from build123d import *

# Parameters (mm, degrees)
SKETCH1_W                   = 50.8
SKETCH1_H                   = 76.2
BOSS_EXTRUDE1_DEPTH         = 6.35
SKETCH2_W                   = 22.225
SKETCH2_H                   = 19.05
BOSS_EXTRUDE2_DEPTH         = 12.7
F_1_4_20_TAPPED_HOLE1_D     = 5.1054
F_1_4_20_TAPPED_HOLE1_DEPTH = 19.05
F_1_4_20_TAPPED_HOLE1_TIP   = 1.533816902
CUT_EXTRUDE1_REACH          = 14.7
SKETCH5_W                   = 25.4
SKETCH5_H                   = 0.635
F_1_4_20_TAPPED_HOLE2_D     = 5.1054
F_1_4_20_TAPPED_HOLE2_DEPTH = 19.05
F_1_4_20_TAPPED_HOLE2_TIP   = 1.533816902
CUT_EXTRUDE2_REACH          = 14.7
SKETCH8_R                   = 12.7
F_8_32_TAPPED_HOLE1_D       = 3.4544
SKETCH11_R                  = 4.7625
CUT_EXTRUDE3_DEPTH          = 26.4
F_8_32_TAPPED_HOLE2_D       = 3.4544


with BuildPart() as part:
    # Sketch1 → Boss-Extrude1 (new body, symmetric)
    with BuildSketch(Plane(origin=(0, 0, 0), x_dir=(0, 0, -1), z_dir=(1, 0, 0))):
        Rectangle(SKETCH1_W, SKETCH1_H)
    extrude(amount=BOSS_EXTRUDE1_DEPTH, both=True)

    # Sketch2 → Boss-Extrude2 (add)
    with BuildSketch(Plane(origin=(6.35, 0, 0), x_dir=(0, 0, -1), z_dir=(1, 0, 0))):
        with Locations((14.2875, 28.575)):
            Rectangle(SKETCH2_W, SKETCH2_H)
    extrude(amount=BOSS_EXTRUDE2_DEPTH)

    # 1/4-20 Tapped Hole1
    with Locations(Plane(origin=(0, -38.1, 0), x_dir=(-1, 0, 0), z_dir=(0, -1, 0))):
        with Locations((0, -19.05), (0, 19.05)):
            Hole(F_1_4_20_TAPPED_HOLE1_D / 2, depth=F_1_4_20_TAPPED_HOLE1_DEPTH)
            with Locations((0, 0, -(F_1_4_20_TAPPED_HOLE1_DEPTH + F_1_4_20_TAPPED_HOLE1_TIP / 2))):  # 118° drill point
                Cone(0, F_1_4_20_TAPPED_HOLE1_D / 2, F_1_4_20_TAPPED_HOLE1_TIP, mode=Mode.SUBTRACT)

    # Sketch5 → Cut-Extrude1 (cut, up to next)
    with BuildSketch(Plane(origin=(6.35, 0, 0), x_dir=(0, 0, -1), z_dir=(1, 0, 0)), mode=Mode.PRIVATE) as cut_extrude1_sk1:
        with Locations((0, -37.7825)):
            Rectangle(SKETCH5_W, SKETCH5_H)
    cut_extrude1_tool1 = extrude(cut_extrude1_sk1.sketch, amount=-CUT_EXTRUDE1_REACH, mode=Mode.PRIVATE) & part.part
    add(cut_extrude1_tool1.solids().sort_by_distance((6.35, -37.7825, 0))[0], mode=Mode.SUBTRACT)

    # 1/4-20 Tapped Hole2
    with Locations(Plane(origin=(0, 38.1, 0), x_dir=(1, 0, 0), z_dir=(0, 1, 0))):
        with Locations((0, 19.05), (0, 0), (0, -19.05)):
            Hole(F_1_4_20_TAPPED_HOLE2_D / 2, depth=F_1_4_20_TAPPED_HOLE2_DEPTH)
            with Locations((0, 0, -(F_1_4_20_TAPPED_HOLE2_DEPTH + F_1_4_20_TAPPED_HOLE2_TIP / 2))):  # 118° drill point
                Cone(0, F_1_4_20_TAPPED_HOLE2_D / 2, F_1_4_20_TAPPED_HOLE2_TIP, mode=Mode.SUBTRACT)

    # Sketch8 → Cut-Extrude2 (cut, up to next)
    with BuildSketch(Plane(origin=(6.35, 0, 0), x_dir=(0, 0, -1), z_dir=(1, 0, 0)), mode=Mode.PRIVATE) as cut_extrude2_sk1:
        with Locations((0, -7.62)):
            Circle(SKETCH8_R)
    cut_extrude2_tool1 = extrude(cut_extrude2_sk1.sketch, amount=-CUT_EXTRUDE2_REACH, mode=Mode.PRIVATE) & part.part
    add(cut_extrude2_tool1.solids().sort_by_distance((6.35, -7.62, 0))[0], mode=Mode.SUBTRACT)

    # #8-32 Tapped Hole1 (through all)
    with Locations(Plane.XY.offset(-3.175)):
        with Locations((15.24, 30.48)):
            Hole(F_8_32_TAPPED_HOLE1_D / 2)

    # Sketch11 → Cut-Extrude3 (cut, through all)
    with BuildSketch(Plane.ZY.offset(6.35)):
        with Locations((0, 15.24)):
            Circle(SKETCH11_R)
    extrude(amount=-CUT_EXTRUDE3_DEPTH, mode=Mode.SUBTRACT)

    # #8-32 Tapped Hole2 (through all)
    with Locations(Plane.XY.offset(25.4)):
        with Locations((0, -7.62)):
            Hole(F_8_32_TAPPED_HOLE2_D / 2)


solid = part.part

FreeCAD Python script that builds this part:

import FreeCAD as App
import Part
import Sketcher
Q = App.Units.Quantity

doc = App.newDocument("Part")
params = doc.addObject("Spreadsheet::Sheet", "Params")
for row, (alias, value) in enumerate([
    ("sketch1_width", "3 in"),
    ("sketch1_height", "2 in"),
    ("pad1_length", "0.5 in"),
    ("sketch2_width", "0.75 in"),
    ("sketch2_height", "0.875 in"),
    ("pad2_length", "0.5 in"),
    ("sketch3_diameter", "0.201 in"),
    ("hole_diameter", "0.201 in"),
    ("hole_depth", "0.75 in"),
    ("sketch4_height", "1 in"),
    ("sketch4_width", "0.025 in"),
    ("sketch5_diameter", "0.201 in"),
    ("hole2_diameter", "0.201 in"),
    ("hole2_depth", "0.75 in"),
    ("sketch6_diameter", "1 in"),
    ("sketch7_diameter", "0.136 in"),
    ("hole3_diameter", "0.136 in"),
    ("sketch8_diameter", "0.375 in"),
    ("sketch9_diameter", "0.136 in"),
    ("hole4_diameter", "0.136 in"),
], start=1):
    params.set(f"A{row}", alias)
    params.set(f"B{row}", "=" + value)
    params.setAlias(f"B{row}", alias)

body = doc.addObject("PartDesign::Body", "Body")

# Sketch on YZ plane
sketch1 = body.newObject("Sketcher::SketchObject", "Sketch")
sketch1.AttachmentSupport = (doc.getObject("YZ_Plane"), [""])
sketch1.MapMode = "FlatFace"
sketch1.addGeometry([
    Part.LineSegment(App.Vector(38, 25, 0), App.Vector(-38, 25, 0)),
    Part.LineSegment(App.Vector(-38, 25, 0), App.Vector(-38, -25, 0)),
    Part.LineSegment(App.Vector(-38, -25, 0), App.Vector(38, -25, 0)),
    Part.LineSegment(App.Vector(38, -25, 0), App.Vector(38, 25, 0)),
], False)
sketch1.addConstraint([
    Sketcher.Constraint("Coincident", 0, 2, 1, 1),
    Sketcher.Constraint("Coincident", 1, 2, 2, 1),
    Sketcher.Constraint("Coincident", 2, 2, 3, 1),
    Sketcher.Constraint("Coincident", 3, 2, 0, 1),
    Sketcher.Constraint("Horizontal", 0),
    Sketcher.Constraint("Vertical", 1),
    Sketcher.Constraint("Horizontal", 2),
    Sketcher.Constraint("Vertical", 3),
    Sketcher.Constraint("Symmetric", 0, 2, 2, 2, -1, 1),
    Sketcher.Constraint("DistanceX", 0, 2, 0, 1, Q("3 in")),
    Sketcher.Constraint("DistanceY", 1, 2, 1, 1, Q("2 in")),
])
sketch1.setExpression("Constraints[9]", "Params.sketch1_width")
sketch1.setExpression("Constraints[10]", "Params.sketch1_height")
pad1 = body.newObject("PartDesign::Pad", "Pad")
pad1.Profile = sketch1
pad1.setExpression("Length", "Params.pad1_length")
pad1.Midplane = True

# Sketch on YZ plane
sketch2 = body.newObject("Sketcher::SketchObject", "Sketch001")
sketch2.AttachmentSupport = (doc.getObject("YZ_Plane"), [""])
sketch2.MapMode = "FlatFace"
sketch2.AttachmentOffset = App.Placement(App.Vector(0, 0, 0.25 * 25.4), App.Rotation())
sketch2.addGeometry([
    Part.LineSegment(App.Vector(38, -3, 0), App.Vector(19, -3, 0)),
    Part.LineSegment(App.Vector(19, -3, 0), App.Vector(19, -25, 0)),
    Part.LineSegment(App.Vector(19, -25, 0), App.Vector(38, -25, 0)),
    Part.LineSegment(App.Vector(38, -25, 0), App.Vector(38, -3, 0)),
], False)
sketch2.addConstraint([
    Sketcher.Constraint("Coincident", 0, 2, 1, 1),
    Sketcher.Constraint("Coincident", 1, 2, 2, 1),
    Sketcher.Constraint("Coincident", 2, 2, 3, 1),
    Sketcher.Constraint("Coincident", 3, 2, 0, 1),
    Sketcher.Constraint("Horizontal", 0),
    Sketcher.Constraint("Vertical", 1),
    Sketcher.Constraint("Horizontal", 2),
    Sketcher.Constraint("Vertical", 3),
    Sketcher.Constraint("DistanceY", 1, 2, -1, 1, Q("1 in")),
    Sketcher.Constraint("DistanceX", 0, 2, 0, 1, Q("0.75 in")),
    Sketcher.Constraint("DistanceX", -1, 1, 2, 2, Q("1.5 in")),
    Sketcher.Constraint("DistanceY", 1, 2, 1, 1, Q("0.875 in")),
])
sketch2.setExpression("Constraints[9]", "Params.sketch2_width")
sketch2.setExpression("Constraints[11]", "Params.sketch2_height")
pad2 = body.newObject("PartDesign::Pad", "Pad001")
pad2.Profile = sketch2
pad2.setExpression("Length", "Params.pad2_length")

# Sketch on XZ plane
sketch3 = body.newObject("Sketcher::SketchObject", "Sketch002")
sketch3.AttachmentSupport = (doc.getObject("XZ_Plane"), [""])
sketch3.MapMode = "FlatFace"
sketch3.AttachmentOffset = App.Placement(App.Vector(0, 0, 1.5 * 25.4), App.Rotation())
sketch3.addGeometry([
    Part.Circle(App.Vector(0, 19.1, 0), App.Vector(0, 0, 1), 2.6),
    Part.Circle(App.Vector(0, -19.1, 0), App.Vector(0, 0, 1), 2.6),
], False)
sketch3.addConstraint([
    Sketcher.Constraint("Equal", 0, 1),
    Sketcher.Constraint("Symmetric", 0, 3, 1, 3, -1, 1),
    Sketcher.Constraint("PointOnObject", 0, 3, -2),
    Sketcher.Constraint("Diameter", 0, Q("0.201 in")),
    Sketcher.Constraint("DistanceY", 1, 3, 0, 3, Q("1.5 in")),
])
sketch3.setExpression("Constraints[3]", "Params.sketch3_diameter")
doc.recompute()
hole = body.newObject("PartDesign::Hole", "Hole")
hole.Profile = sketch3
hole.ThreadType = "None"
hole.setExpression("Diameter", "Params.hole_diameter")
hole.DepthType = "Dimension"
hole.setExpression("Depth", "Params.hole_depth")
hole.DrillPoint = "Angled"
hole.DrillPointAngle = 118

# Sketch on YZ plane
sketch4 = body.newObject("Sketcher::SketchObject", "Sketch003")
sketch4.AttachmentSupport = (doc.getObject("YZ_Plane"), [""])
sketch4.MapMode = "FlatFace"
sketch4.AttachmentOffset = App.Placement(App.Vector(0, 0, 0.25 * 25.4), App.Rotation())
sketch4.addGeometry([
    Part.LineSegment(App.Vector(-37.5, 12.7, 0), App.Vector(-38.1, 12.7, 0)),
    Part.LineSegment(App.Vector(-38.1, 12.7, 0), App.Vector(-38.1, -12.7, 0)),
    Part.LineSegment(App.Vector(-38.1, -12.7, 0), App.Vector(-37.5, -12.7, 0)),
    Part.LineSegment(App.Vector(-37.5, -12.7, 0), App.Vector(-37.5, 12.7, 0)),
], False)
sketch4.addConstraint([
    Sketcher.Constraint("Coincident", 0, 2, 1, 1),
    Sketcher.Constraint("Coincident", 1, 2, 2, 1),
    Sketcher.Constraint("Coincident", 2, 2, 3, 1),
    Sketcher.Constraint("Coincident", 3, 2, 0, 1),
    Sketcher.Constraint("Horizontal", 0),
    Sketcher.Constraint("Vertical", 1),
    Sketcher.Constraint("Horizontal", 2),
    Sketcher.Constraint("Vertical", 3),
    Sketcher.Constraint("DistanceY", 1, 2, 1, 1, Q("1 in")),
    Sketcher.Constraint("DistanceX", 0, 2, -1, 1, Q("1.5 in")),
    Sketcher.Constraint("DistanceY", -1, 1, 0, 2, Q("0.5 in")),
    Sketcher.Constraint("DistanceX", 0, 2, 0, 1, Q("0.025 in")),
])
sketch4.setExpression("Constraints[8]", "Params.sketch4_height")
sketch4.setExpression("Constraints[11]", "Params.sketch4_width")
pocket1 = body.newObject("PartDesign::Pocket", "Pocket")
pocket1.Profile = sketch4
pocket1.Type = "UpToFirst"

# Sketch on XZ plane
sketch5 = body.newObject("Sketcher::SketchObject", "Sketch004")
sketch5.AttachmentSupport = (doc.getObject("XZ_Plane"), [""])
sketch5.MapMode = "FlatFace"
sketch5.AttachmentOffset = App.Placement(App.Vector(0, 0, -1.5 * 25.4), App.Rotation())
sketch5.addGeometry([
    Part.Circle(App.Vector(0, -19.1, 0), App.Vector(0, 0, 1), 2.6),
    Part.Circle(App.Vector(0, 0, 0), App.Vector(0, 0, 1), 2.6),
    Part.Circle(App.Vector(0, 19.1, 0), App.Vector(0, 0, 1), 2.6),
], False)
sketch5.addConstraint([
    Sketcher.Constraint("Coincident", 1, 3, -1, 1),
    Sketcher.Constraint("Equal", 0, 1),
    Sketcher.Constraint("Equal", 1, 2),
    Sketcher.Constraint("Symmetric", 0, 3, 2, 3, -1, 1),
    Sketcher.Constraint("PointOnObject", 0, 3, -2),
    Sketcher.Constraint("Diameter", 0, Q("0.201 in")),
    Sketcher.Constraint("DistanceY", 0, 3, 2, 3, Q("1.5 in")),
])
sketch5.setExpression("Constraints[5]", "Params.sketch5_diameter")
doc.recompute()
hole2 = body.newObject("PartDesign::Hole", "Hole001")
hole2.Profile = sketch5
hole2.ThreadType = "None"
hole2.setExpression("Diameter", "Params.hole2_diameter")
hole2.DepthType = "Dimension"
hole2.setExpression("Depth", "Params.hole2_depth")
hole2.DrillPoint = "Angled"
hole2.DrillPointAngle = 118
hole2.Reversed = True

# Sketch on YZ plane
sketch6 = body.newObject("Sketcher::SketchObject", "Sketch005")
sketch6.AttachmentSupport = (doc.getObject("YZ_Plane"), [""])
sketch6.MapMode = "FlatFace"
sketch6.AttachmentOffset = App.Placement(App.Vector(0, 0, 0.25 * 25.4), App.Rotation())
sketch6.addGeometry(Part.Circle(App.Vector(-8, 0, 0), App.Vector(0, 0, 1), 13), False)
sketch6.addConstraint([
    Sketcher.Constraint("PointOnObject", 0, 3, -1),
    Sketcher.Constraint("Diameter", 0, Q("1 in")),
    Sketcher.Constraint("DistanceX", 0, 3, -1, 1, Q("0.3 in")),
])
sketch6.setExpression("Constraints[1]", "Params.sketch6_diameter")
pocket2 = body.newObject("PartDesign::Pocket", "Pocket001")
pocket2.Profile = sketch6
pocket2.Type = "UpToFirst"

# Sketch on XY plane
sketch7 = body.newObject("Sketcher::SketchObject", "Sketch006")
sketch7.AttachmentSupport = (doc.getObject("XY_Plane"), [""])
sketch7.MapMode = "FlatFace"
sketch7.AttachmentOffset = App.Placement(App.Vector(0, 0, -0.125 * 25.4), App.Rotation())
sketch7.addGeometry(Part.Circle(App.Vector(15.2, 30.5, 0), App.Vector(0, 0, 1), 1.7), False)
sketch7.addConstraint([
    Sketcher.Constraint("Diameter", 0, Q("0.136 in")),
    Sketcher.Constraint("DistanceX", -1, 1, 0, 3, Q("0.6 in")),
    Sketcher.Constraint("DistanceY", -1, 1, 0, 3, Q("1.2 in")),
])
sketch7.setExpression("Constraints[0]", "Params.sketch7_diameter")
doc.recompute()
hole3 = body.newObject("PartDesign::Hole", "Hole002")
hole3.Profile = sketch7
hole3.ThreadType = "None"
hole3.setExpression("Diameter", "Params.hole3_diameter")
hole3.DepthType = "ThroughAll"

# Sketch on YZ plane
sketch8 = body.newObject("Sketcher::SketchObject", "Sketch007")
sketch8.AttachmentSupport = (doc.getObject("YZ_Plane"), [""])
sketch8.MapMode = "FlatFace"
sketch8.AttachmentOffset = App.Placement(App.Vector(0, 0, -0.25 * 25.4), App.Rotation())
sketch8.addGeometry(Part.Circle(App.Vector(15.2, 0, 0), App.Vector(0, 0, 1), 4.8), False)
sketch8.addConstraint([
    Sketcher.Constraint("PointOnObject", 0, 3, -1),
    Sketcher.Constraint("Diameter", 0, Q("0.375 in")),
    Sketcher.Constraint("DistanceX", -1, 1, 0, 3, Q("0.6 in")),
])
sketch8.setExpression("Constraints[1]", "Params.sketch8_diameter")
pocket3 = body.newObject("PartDesign::Pocket", "Pocket002")
pocket3.Profile = sketch8
pocket3.Type = "ThroughAll"
pocket3.Reversed = True

# Sketch on XY plane
sketch9 = body.newObject("Sketcher::SketchObject", "Sketch008")
sketch9.AttachmentSupport = (doc.getObject("XY_Plane"), [""])
sketch9.MapMode = "FlatFace"
sketch9.AttachmentOffset = App.Placement(App.Vector(0, 0, 1 * 25.4), App.Rotation())
sketch9.addGeometry(Part.Circle(App.Vector(0, -7.6, 0), App.Vector(0, 0, 1), 1.7), False)
sketch9.addConstraint([
    Sketcher.Constraint("PointOnObject", 0, 3, -2),
    Sketcher.Constraint("Diameter", 0, Q("0.136 in")),
    Sketcher.Constraint("DistanceY", 0, 3, -1, 1, Q("0.3 in")),
])
sketch9.setExpression("Constraints[1]", "Params.sketch9_diameter")
doc.recompute()
hole4 = body.newObject("PartDesign::Hole", "Hole003")
hole4.Profile = sketch9
hole4.ThreadType = "None"
hole4.setExpression("Diameter", "Params.hole4_diameter")
hole4.DepthType = "ThroughAll"

doc.recompute()
